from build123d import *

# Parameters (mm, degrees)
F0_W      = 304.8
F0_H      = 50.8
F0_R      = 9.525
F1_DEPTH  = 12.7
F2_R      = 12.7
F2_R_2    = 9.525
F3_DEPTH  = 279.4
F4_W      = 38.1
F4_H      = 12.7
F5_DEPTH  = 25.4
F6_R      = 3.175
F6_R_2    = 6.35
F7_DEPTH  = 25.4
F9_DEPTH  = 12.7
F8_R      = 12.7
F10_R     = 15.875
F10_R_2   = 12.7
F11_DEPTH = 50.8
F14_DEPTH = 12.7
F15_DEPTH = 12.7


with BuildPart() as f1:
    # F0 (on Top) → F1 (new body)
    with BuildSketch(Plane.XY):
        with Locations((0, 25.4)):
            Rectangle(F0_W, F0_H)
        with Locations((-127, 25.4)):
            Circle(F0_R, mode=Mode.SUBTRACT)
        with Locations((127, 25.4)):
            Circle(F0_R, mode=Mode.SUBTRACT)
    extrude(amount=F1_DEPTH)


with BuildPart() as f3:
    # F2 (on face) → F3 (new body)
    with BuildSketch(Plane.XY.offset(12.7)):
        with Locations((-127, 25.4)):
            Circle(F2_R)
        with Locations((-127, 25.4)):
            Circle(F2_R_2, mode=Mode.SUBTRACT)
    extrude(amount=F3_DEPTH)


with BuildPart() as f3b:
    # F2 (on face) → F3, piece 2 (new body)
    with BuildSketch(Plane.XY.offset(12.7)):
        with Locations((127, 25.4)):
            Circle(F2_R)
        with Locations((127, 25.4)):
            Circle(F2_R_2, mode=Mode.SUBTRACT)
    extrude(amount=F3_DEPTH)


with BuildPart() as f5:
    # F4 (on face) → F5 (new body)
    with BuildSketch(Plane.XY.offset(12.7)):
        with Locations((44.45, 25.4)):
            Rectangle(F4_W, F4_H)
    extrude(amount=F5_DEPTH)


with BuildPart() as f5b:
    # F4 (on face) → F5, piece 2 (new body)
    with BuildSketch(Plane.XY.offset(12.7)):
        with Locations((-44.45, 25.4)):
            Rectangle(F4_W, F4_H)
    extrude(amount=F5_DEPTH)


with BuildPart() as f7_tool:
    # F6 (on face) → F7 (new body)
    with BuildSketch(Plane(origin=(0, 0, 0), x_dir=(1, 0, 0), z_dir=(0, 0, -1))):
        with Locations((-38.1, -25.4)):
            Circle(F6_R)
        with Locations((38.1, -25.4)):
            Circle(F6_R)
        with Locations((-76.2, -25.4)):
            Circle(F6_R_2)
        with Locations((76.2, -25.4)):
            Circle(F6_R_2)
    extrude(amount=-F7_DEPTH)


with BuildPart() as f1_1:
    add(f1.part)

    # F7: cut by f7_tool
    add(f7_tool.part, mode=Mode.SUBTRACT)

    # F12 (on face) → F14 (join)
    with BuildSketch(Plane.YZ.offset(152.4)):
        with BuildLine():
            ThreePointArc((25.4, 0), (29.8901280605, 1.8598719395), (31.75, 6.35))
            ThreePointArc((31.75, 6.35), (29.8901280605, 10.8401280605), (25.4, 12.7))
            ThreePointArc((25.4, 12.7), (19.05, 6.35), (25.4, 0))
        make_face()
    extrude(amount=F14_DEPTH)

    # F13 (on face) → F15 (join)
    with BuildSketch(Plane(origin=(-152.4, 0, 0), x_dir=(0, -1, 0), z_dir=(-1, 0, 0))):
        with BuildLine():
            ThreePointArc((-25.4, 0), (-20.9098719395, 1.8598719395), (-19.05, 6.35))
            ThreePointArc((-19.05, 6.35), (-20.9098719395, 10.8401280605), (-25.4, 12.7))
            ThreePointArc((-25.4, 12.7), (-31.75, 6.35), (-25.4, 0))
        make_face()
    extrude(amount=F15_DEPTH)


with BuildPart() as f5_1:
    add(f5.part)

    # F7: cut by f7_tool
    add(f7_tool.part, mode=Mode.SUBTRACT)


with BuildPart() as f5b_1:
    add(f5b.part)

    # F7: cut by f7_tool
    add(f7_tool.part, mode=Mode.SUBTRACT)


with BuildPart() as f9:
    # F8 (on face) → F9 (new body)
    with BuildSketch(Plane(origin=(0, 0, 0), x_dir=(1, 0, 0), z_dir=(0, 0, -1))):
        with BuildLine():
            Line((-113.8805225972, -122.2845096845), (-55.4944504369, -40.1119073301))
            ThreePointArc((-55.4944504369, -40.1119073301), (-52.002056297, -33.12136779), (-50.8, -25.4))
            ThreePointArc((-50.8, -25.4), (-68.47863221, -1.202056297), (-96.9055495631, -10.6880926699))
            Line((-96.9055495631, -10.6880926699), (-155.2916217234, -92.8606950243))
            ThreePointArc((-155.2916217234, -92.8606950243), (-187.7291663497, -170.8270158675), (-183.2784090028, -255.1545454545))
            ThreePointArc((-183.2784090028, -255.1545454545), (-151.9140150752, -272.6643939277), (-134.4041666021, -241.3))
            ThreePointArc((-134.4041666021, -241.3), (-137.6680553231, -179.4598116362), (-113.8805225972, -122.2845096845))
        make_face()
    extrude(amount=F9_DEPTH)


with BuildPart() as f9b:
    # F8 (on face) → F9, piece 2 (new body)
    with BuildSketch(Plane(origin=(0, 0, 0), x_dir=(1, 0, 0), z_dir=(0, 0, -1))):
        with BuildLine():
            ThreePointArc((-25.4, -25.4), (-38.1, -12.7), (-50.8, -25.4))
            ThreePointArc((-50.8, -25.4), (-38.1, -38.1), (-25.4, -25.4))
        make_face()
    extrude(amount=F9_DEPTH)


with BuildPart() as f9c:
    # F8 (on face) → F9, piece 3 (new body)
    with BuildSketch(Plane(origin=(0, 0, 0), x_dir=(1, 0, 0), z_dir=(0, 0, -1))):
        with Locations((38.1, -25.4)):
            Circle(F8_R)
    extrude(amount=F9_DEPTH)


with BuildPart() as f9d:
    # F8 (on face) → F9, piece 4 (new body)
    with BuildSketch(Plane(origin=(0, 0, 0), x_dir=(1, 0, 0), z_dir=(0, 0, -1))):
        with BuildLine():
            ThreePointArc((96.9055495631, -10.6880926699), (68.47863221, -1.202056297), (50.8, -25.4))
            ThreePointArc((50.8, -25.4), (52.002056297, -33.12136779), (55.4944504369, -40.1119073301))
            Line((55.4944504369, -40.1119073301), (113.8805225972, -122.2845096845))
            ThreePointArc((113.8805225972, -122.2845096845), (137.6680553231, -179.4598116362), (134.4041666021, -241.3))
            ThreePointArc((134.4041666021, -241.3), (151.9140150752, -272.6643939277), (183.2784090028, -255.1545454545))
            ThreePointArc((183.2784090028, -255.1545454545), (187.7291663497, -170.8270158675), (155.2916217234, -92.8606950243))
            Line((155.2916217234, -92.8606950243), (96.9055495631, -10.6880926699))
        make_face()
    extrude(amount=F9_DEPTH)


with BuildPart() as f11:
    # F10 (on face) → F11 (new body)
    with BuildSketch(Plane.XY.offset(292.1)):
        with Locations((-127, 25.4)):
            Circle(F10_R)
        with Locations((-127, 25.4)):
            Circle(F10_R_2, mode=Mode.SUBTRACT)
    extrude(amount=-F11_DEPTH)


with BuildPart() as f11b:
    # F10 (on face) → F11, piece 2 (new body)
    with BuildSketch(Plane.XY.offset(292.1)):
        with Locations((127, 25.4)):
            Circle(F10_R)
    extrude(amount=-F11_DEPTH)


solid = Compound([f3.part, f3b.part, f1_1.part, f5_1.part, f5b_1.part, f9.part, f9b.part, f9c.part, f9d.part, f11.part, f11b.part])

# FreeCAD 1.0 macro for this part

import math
import FreeCAD as App
import Part
import Sketcher
Q = App.Units.Quantity

doc = App.newDocument("Part")
body = doc.addObject("PartDesign::Body", "Body")

sketch1 = doc.addObject("Sketcher::SketchObject", "Sketch")
body.addObject(sketch1)
sketch1.AttachmentSupport = (doc.XY_Plane, [""])
sketch1.MapMode = "FlatFace"
sketch1.addGeometry(Part.LineSegment(App.Vector(-152, 51, 0), App.Vector(-152, 0, 0)), False)
sketch1.addGeometry(Part.LineSegment(App.Vector(-152, 0, 0), App.Vector(152, 0, 0)), False)
sketch1.addGeometry(Part.LineSegment(App.Vector(152, 0, 0), App.Vector(152, 51, 0)), False)
sketch1.addGeometry(Part.LineSegment(App.Vector(152, 51, 0), App.Vector(-152, 51, 0)), False)
sketch1.addGeometry(Part.Circle(App.Vector(-127, 25, 0), App.Vector(0, 0, 1), 10), False)
sketch1.addGeometry(Part.Circle(App.Vector(127, 25, 0), App.Vector(0, 0, 1), 10), False)
sketch1.addConstraint(Sketcher.Constraint("Coincident", 0, 2, 1, 1))
sketch1.addConstraint(Sketcher.Constraint("Coincident", 1, 2, 2, 1))
sketch1.addConstraint(Sketcher.Constraint("Coincident", 2, 2, 3, 1))
sketch1.addConstraint(Sketcher.Constraint("Coincident", 3, 2, 0, 1))
sketch1.addConstraint(Sketcher.Constraint("Vertical", 0))
sketch1.addConstraint(Sketcher.Constraint("Horizontal", 1))
sketch1.addConstraint(Sketcher.Constraint("Vertical", 2))
sketch1.addConstraint(Sketcher.Constraint("Horizontal", 3))
sketch1.addConstraint(Sketcher.Constraint("Equal", 4, 5))
sketch1.addConstraint(Sketcher.Constraint("Symmetric", 0, 2, 1, 2, -1, 1))
sketch1.addConstraint(Sketcher.Constraint("Symmetric", 4, 3, 5, 3, -2))
sketch1.addConstraint(Sketcher.Constraint("Diameter", 4, Q("0.75 in")))
sketch1.addConstraint(Sketcher.Constraint("DistanceX", 1, 1, 1, 2, Q("12 in")))
sketch1.addConstraint(Sketcher.Constraint("DistanceY", 0, 2, 0, 1, Q("2 in")))
sketch1.addConstraint(Sketcher.Constraint("DistanceX", 4, 3, -1, 1, Q("5 in")))
sketch1.addConstraint(Sketcher.Constraint("DistanceY", -1, 1, 4, 3, Q("1 in")))
pad1 = doc.addObject("PartDesign::Pad", "Pad")
body.addObject(pad1)
pad1.Profile = sketch1
pad1.Length = Q("0.5 in")
body2 = doc.addObject("PartDesign::Body", "Body001")

sketch2 = doc.addObject("Sketcher::SketchObject", "Sketch001")
body2.addObject(sketch2)
sketch2.AttachmentSupport = (doc.getObject("XY_Plane001"), [""])
sketch2.MapMode = "FlatFace"
sketch2.AttachmentOffset = App.Placement(App.Vector(0, 0, 0.5 * 25.4), App.Rotation())
sketch2.addGeometry(Part.Circle(App.Vector(-127, 25, 0), App.Vector(0, 0, 1), 13), False)
sketch2.addGeometry(Part.Circle(App.Vector(-127, 25, 0), App.Vector(0, 0, 1), 10), False)
sketch2.addConstraint(Sketcher.Constraint("Coincident", 1, 3, 0, 3))
sketch2.addConstraint(Sketcher.Constraint("Diameter", 0, Q("1 in")))
sketch2.addConstraint(Sketcher.Constraint("Diameter", 1, Q("0.75 in")))
sketch2.addConstraint(Sketcher.Constraint("DistanceX", 0, 3, -1, 1, Q("5 in")))
sketch2.addConstraint(Sketcher.Constraint("DistanceY", -1, 1, 0, 3, Q("1 in")))
pad2 = doc.addObject("PartDesign::Pad", "Pad001")
body2.addObject(pad2)
pad2.Profile = sketch2
pad2.Length = Q("11 in")
body3 = doc.addObject("PartDesign::Body", "Body002")

sketch3 = doc.addObject("Sketcher::SketchObject", "Sketch002")
body3.addObject(sketch3)
sketch3.AttachmentSupport = (doc.getObject("XY_Plane002"), [""])
sketch3.MapMode = "FlatFace"
sketch3.AttachmentOffset = App.Placement(App.Vector(0, 0, 0.5 * 25.4), App.Rotation())
sketch3.addGeometry(Part.Circle(App.Vector(127, 25, 0), App.Vector(0, 0, 1), 13), False)
sketch3.addGeometry(Part.Circle(App.Vector(127, 25, 0), App.Vector(0, 0, 1), 10), False)
sketch3.addConstraint(Sketcher.Constraint("Coincident", 1, 3, 0, 3))
sketch3.addConstraint(Sketcher.Constraint("Diameter", 0, Q("1 in")))
sketch3.addConstraint(Sketcher.Constraint("Diameter", 1, Q("0.75 in")))
sketch3.addConstraint(Sketcher.Constraint("DistanceX", -1, 1, 0, 3, Q("5 in")))
sketch3.addConstraint(Sketcher.Constraint("DistanceY", -1, 1, 0, 3, Q("1 in")))
pad3 = doc.addObject("PartDesign::Pad", "Pad002")
body3.addObject(pad3)
pad3.Profile = sketch3
pad3.Length = Q("11 in")
body4 = doc.addObject("PartDesign::Body", "Body003")

sketch4 = doc.addObject("Sketcher::SketchObject", "Sketch003")
body4.addObject(sketch4)
sketch4.AttachmentSupport = (doc.getObject("XY_Plane003"), [""])
sketch4.MapMode = "FlatFace"
sketch4.AttachmentOffset = App.Placement(App.Vector(0, 0, 0.5 * 25.4), App.Rotation())
sketch4.addGeometry(Part.LineSegment(App.Vector(25, 32, 0), App.Vector(25, 19, 0)), False)
sketch4.addGeometry(Part.LineSegment(App.Vector(25, 19, 0), App.Vector(64, 19, 0)), False)
sketch4.addGeometry(Part.LineSegment(App.Vector(64, 19, 0), App.Vector(64, 32, 0)), False)
sketch4.addGeometry(Part.LineSegment(App.Vector(64, 32, 0), App.Vector(25, 32, 0)), False)
sketch4.addConstraint(Sketcher.Constraint("Coincident", 0, 2, 1, 1))
sketch4.addConstraint(Sketcher.Constraint("Coincident", 1, 2, 2, 1))
sketch4.addConstraint(Sketcher.Constraint("Coincident", 2, 2, 3, 1))
sketch4.addConstraint(Sketcher.Constraint("Coincident", 3, 2, 0, 1))
sketch4.addConstraint(Sketcher.Constraint("Vertical", 0))
sketch4.addConstraint(Sketcher.Constraint("Horizontal", 1))
sketch4.addConstraint(Sketcher.Constraint("Vertical", 2))
sketch4.addConstraint(Sketcher.Constraint("Horizontal", 3))
sketch4.addConstraint(Sketcher.Constraint("DistanceX", 1, 1, 1, 2, Q("1.5 in")))
sketch4.addConstraint(Sketcher.Constraint("DistanceY", 0, 2, 0, 1, Q("0.5 in")))
sketch4.addConstraint(Sketcher.Constraint("DistanceX", -1, 1, 0, 2, Q("1 in")))
sketch4.addConstraint(Sketcher.Constraint("DistanceY", -1, 1, 0, 2, Q("0.75 in")))
pad4 = doc.addObject("PartDesign::Pad", "Pad003")
body4.addObject(pad4)
pad4.Profile = sketch4
pad4.Length = Q("1 in")
body5 = doc.addObject("PartDesign::Body", "Body004")

sketch5 = doc.addObject("Sketcher::SketchObject", "Sketch004")
body5.addObject(sketch5)
sketch5.AttachmentSupport = (doc.getObject("XY_Plane004"), [""])
sketch5.MapMode = "FlatFace"
sketch5.AttachmentOffset = App.Placement(App.Vector(0, 0, 0.5 * 25.4), App.Rotation())
sketch5.addGeometry(Part.LineSegment(App.Vector(-64, 32, 0), App.Vector(-64, 19, 0)), False)
sketch5.addGeometry(Part.LineSegment(App.Vector(-64, 19, 0), App.Vector(-25, 19, 0)), False)
sketch5.addGeometry(Part.LineSegment(App.Vector(-25, 19, 0), App.Vector(-25, 32, 0)), False)
sketch5.addGeometry(Part.LineSegment(App.Vector(-25, 32, 0), App.Vector(-64, 32, 0)), False)
sketch5.addConstraint(Sketcher.Constraint("Coincident", 0, 2, 1, 1))
sketch5.addConstraint(Sketcher.Constraint("Coincident", 1, 2, 2, 1))
sketch5.addConstraint(Sketcher.Constraint("Coincident", 2, 2, 3, 1))
sketch5.addConstraint(Sketcher.Constraint("Coincident", 3, 2, 0, 1))
sketch5.addConstraint(Sketcher.Constraint("Vertical", 0))
sketch5.addConstraint(Sketcher.Constraint("Horizontal", 1))
sketch5.addConstraint(Sketcher.Constraint("Vertical", 2))
sketch5.addConstraint(Sketcher.Constraint("Horizontal", 3))
sketch5.addConstraint(Sketcher.Constraint("DistanceX", 1, 1, 1, 2, Q("1.5 in")))
sketch5.addConstraint(Sketcher.Constraint("DistanceY", 0, 2, 0, 1, Q("0.5 in")))
sketch5.addConstraint(Sketcher.Constraint("DistanceX", 1, 2, -1, 1, Q("1 in")))
sketch5.addConstraint(Sketcher.Constraint("DistanceY", -1, 1, 0, 2, Q("0.75 in")))
pad5 = doc.addObject("PartDesign::Pad", "Pad004")
body5.addObject(pad5)
pad5.Profile = sketch5
pad5.Length = Q("1 in")
body6 = doc.addObject("PartDesign::Body", "Body005")
body6.AllowCompound = True

sketch6 = doc.addObject("Sketcher::SketchObject", "Sketch005")
body6.addObject(sketch6)
sketch6.AttachmentSupport = (doc.getObject("XY_Plane005"), [""])
sketch6.MapMode = "FlatFace"
sketch6.addGeometry(Part.Circle(App.Vector(-38.1, 25.4, 0), App.Vector(0, 0, 1), 3.2), False)
sketch6.addGeometry(Part.Circle(App.Vector(38.1, 25.4, 0), App.Vector(0, 0, 1), 3.2), False)
sketch6.addGeometry(Part.Circle(App.Vector(-76.2, 25.4, 0), App.Vector(0, 0, 1), 6.3), False)
sketch6.addGeometry(Part.Circle(App.Vector(76.2, 25.4, 0), App.Vector(0, 0, 1), 6.3), False)
sketch6.addConstraint(Sketcher.Constraint("Equal", 0, 1))
sketch6.addConstraint(Sketcher.Constraint("Equal", 2, 3))
sketch6.addConstraint(Sketcher.Constraint("Symmetric", 0, 3, 1, 3, -2))
sketch6.addConstraint(Sketcher.Constraint("Symmetric", 2, 3, 3, 3, -2))
sketch6.addConstraint(Sketcher.Constraint("Horizontal", 1, 3, 2, 3))
sketch6.addConstraint(Sketcher.Constraint("Diameter", 2, Q("0.5 in")))
sketch6.addConstraint(Sketcher.Constraint("Diameter", 0, Q("0.25 in")))
sketch6.addConstraint(Sketcher.Constraint("DistanceY", -1, 1, 0, 3, Q("1 in")))
sketch6.addConstraint(Sketcher.Constraint("DistanceX", 2, 3, -1, 1, Q("3 in")))
sketch6.addConstraint(Sketcher.Constraint("DistanceX", 0, 3, 1, 3, Q("3 in")))
pad6 = doc.addObject("PartDesign::Pad", "Pad005")
body6.addObject(pad6)
pad6.Profile = sketch6
pad6.Length = Q("1 in")
doc.recompute()

body7 = doc.addObject("PartDesign::Body", "Body006")
body7.BaseFeature = body6
boolean = doc.addObject("PartDesign::Boolean", "Boolean")
body.addObject(boolean)
boolean.Type = "Cut"
boolean.addObjects([body7])
doc.recompute()

sketch7 = doc.addObject("Sketcher::SketchObject", "Sketch006")
body.addObject(sketch7)
sketch7.AttachmentSupport = (doc.YZ_Plane, [""])
sketch7.MapMode = "FlatFace"
sketch7.AttachmentOffset = App.Placement(App.Vector(0, 0, 6 * 25.4), App.Rotation())
sketch7.addGeometry(Part.ArcOfCircle(Part.Circle(App.Vector(25, 6, 0), App.Vector(0, 0, 1), 6), math.radians(-90), math.radians(0)), False)
sketch7.addGeometry(Part.ArcOfCircle(Part.Circle(App.Vector(25, 6, 0), App.Vector(0, 0, 1), 6), math.radians(0), math.radians(90)), False)
sketch7.addGeometry(Part.ArcOfCircle(Part.Circle(App.Vector(25, 6, 0), App.Vector(0, 0, 1), 6), math.radians(90), math.radians(270)), False)
sketch7.addConstraint(Sketcher.Constraint("Tangent", 0, 2, 1, 1))
sketch7.addConstraint(Sketcher.Constraint("Tangent", 1, 2, 2, 1))
sketch7.addConstraint(Sketcher.Constraint("Tangent", 2, 2, 0, 1))
sketch7.addConstraint(Sketcher.Constraint("PointOnObject", 2, 2, -1))
sketch7.addConstraint(Sketcher.Constraint("Horizontal", 2, 3, 0, 2))
sketch7.addConstraint(Sketcher.Constraint("Vertical", 2, 3, 1, 2))
sketch7.addConstraint(Sketcher.Constraint("Vertical", 1, 2, 2, 2))
sketch7.addConstraint(Sketcher.Constraint("Radius", 0, Q("0.25 in")))
sketch7.addConstraint(Sketcher.Constraint("DistanceX", -1, 1, 0, 3, Q("1 in")))
pad7 = doc.addObject("PartDesign::Pad", "Pad006")
body.addObject(pad7)
pad7.Profile = sketch7
pad7.Length = Q("0.5 in")

sketch8 = doc.addObject("Sketcher::SketchObject", "Sketch007")
body.addObject(sketch8)
sketch8.AttachmentSupport = (doc.YZ_Plane, [""])
sketch8.MapMode = "FlatFace"
sketch8.AttachmentOffset = App.Placement(App.Vector(0, 0, -6 * 25.4), App.Rotation())
sketch8.addGeometry(Part.ArcOfCircle(Part.Circle(App.Vector(25, 6, 0), App.Vector(0, 0, 1), 6), math.radians(180), math.radians(270)), False)
sketch8.addGeometry(Part.ArcOfCircle(Part.Circle(App.Vector(25, 6, 0), App.Vector(0, 0, 1), 6), math.radians(90), math.radians(180)), False)
sketch8.addGeometry(Part.ArcOfCircle(Part.Circle(App.Vector(25, 6, 0), App.Vector(0, 0, 1), 6), math.radians(-90), math.radians(90)), False)
sketch8.addConstraint(Sketcher.Constraint("Tangent", 0, 1, 1, 2))
sketch8.addConstraint(Sketcher.Constraint("Tangent", 1, 1, 2, 2))
sketch8.addConstraint(Sketcher.Constraint("Tangent", 2, 1, 0, 2))
sketch8.addConstraint(Sketcher.Constraint("PointOnObject", 2, 1, -1))
sketch8.addConstraint(Sketcher.Constraint("Horizontal", 2, 3, 0, 1))
sketch8.addConstraint(Sketcher.Constraint("Vertical", 2, 3, 1, 1))
sketch8.addConstraint(Sketcher.Constraint("Vertical", 1, 1, 2, 1))
sketch8.addConstraint(Sketcher.Constraint("Radius", 0, Q("0.25 in")))
sketch8.addConstraint(Sketcher.Constraint("DistanceX", -1, 1, 0, 3, Q("1 in")))
pad8 = doc.addObject("PartDesign::Pad", "Pad007")
body.addObject(pad8)
pad8.Profile = sketch8
pad8.Length = Q("0.5 in")
pad8.Reversed = True
doc.recompute()

body8 = doc.addObject("PartDesign::Body", "Body007")
body8.BaseFeature = body6
boolean2 = doc.addObject("PartDesign::Boolean", "Boolean001")
body4.addObject(boolean2)
boolean2.Type = "Cut"
boolean2.addObjects([body8])
doc.recompute()

boolean3 = doc.addObject("PartDesign::Boolean", "Boolean002")
body5.addObject(boolean3)
boolean3.Type = "Cut"
boolean3.addObjects([body6])
body9 = doc.addObject("PartDesign::Body", "Body008")

sketch9 = doc.addObject("Sketcher::SketchObject", "Sketch008")
body9.addObject(sketch9)
sketch9.AttachmentSupport = (doc.getObject("XY_Plane008"), [""])
sketch9.MapMode = "FlatFace"
sketch9.addGeometry(Part.LineSegment(App.Vector(-114, 122, 0), App.Vector(-55, 40, 0)), False)
sketch9.addGeometry(Part.ArcOfCircle(Part.Circle(App.Vector(-76, 25, 0), App.Vector(0, 0, 1), 25), math.radians(0), math.radians(35)), False)
sketch9.addGeometry(Part.ArcOfCircle(Part.Circle(App.Vector(-76, 25, 0), App.Vector(0, 0, 1), 25), math.radians(-145), math.radians(0)), False)
sketch9.addGeometry(Part.LineSegment(App.Vector(-97, 11, 0), App.Vector(-155, 93, 0)), False)
sketch9.addGeometry(Part.ArcOfCircle(Part.Circle(App.Vector(0, 203, 0), App.Vector(0, 0, 1), 190), math.radians(164), math.radians(215)), False)
sketch9.addGeometry(Part.ArcOfCircle(Part.Circle(App.Vector(-159, 248, 0), App.Vector(0, 0, 1), 25), math.radians(-16), math.radians(164)), False)
sketch9.addGeometry(Part.ArcOfCircle(Part.Circle(App.Vector(0, 203, 0), App.Vector(0, 0, 1), 140), math.radians(164), math.radians(215)), False)
sketch9.addConstraint(Sketcher.Constraint("Tangent", 0, 2, 1, 2))
sketch9.addConstraint(Sketcher.Constraint("Tangent", 1, 1, 2, 2))
sketch9.addConstraint(Sketcher.Constraint("Tangent", 2, 1, 3, 1))
sketch9.addConstraint(Sketcher.Constraint("Tangent", 3, 2, 4, 2))
sketch9.addConstraint(Sketcher.Constraint("Tangent", 4, 1, 5, 2))
sketch9.addConstraint(Sketcher.Constraint("Tangent", 5, 1, 6, 1))
sketch9.addConstraint(Sketcher.Constraint("Tangent", 6, 2, 0, 1))
sketch9.addConstraint(Sketcher.Constraint("Coincident", 6, 3, 4, 3))
sketch9.addConstraint(Sketcher.Constraint("Equal", 1, 2))
sketch9.addConstraint(Sketcher.Constraint("Equal", 2, 5))
sketch9.addConstraint(Sketcher.Constraint("PointOnObject", 4, 3, -2))
sketch9.addConstraint(Sketcher.Constraint("Horizontal", 2, 3, 1, 1))
sketch9.addConstraint(Sketcher.Constraint("Radius", 1, Q("1 in")))
sketch9.addConstraint(Sketcher.Constraint("Radius", 4, Q("7.5 in")))
sketch9.addConstraint(Sketcher.Constraint("DistanceX", 1, 3, -1, 1, Q("3 in")))
sketch9.addConstraint(Sketcher.Constraint("DistanceY", -1, 1, 1, 3, Q("1 in")))
sketch9.addConstraint(Sketcher.Constraint("DistanceY", -1, 1, 4, 3, Q("8 in")))
sketch9.addConstraint(Sketcher.Constraint("DistanceY", -1, 1, 5, 1, Q("9.5 in")))
pad9 = doc.addObject("PartDesign::Pad", "Pad008")
body9.addObject(pad9)
pad9.Profile = sketch9
pad9.Length = Q("0.5 in")
pad9.Reversed = True
body10 = doc.addObject("PartDesign::Body", "Body009")

sketch10 = doc.addObject("Sketcher::SketchObject", "Sketch009")
body10.addObject(sketch10)
sketch10.AttachmentSupport = (doc.getObject("XY_Plane009"), [""])
sketch10.MapMode = "FlatFace"
sketch10.addGeometry(Part.Circle(App.Vector(-38, 25, 0), App.Vector(0, 0, 1), 13), False)
sketch10.addConstraint(Sketcher.Constraint("Diameter", 0, Q("1 in")))
sketch10.addConstraint(Sketcher.Constraint("DistanceY", -1, 1, 0, 3, Q("1 in")))
sketch10.addConstraint(Sketcher.Constraint("DistanceX", 0, 3, -1, 1, Q("1.5 in")))
pad10 = doc.addObject("PartDesign::Pad", "Pad009")
body10.addObject(pad10)
pad10.Profile = sketch10
pad10.Length = Q("0.5 in")
pad10.Reversed = True
body11 = doc.addObject("PartDesign::Body", "Body010")

sketch11 = doc.addObject("Sketcher::SketchObject", "Sketch010")
body11.addObject(sketch11)
sketch11.AttachmentSupport = (doc.getObject("XY_Plane010"), [""])
sketch11.MapMode = "FlatFace"
sketch11.addGeometry(Part.Circle(App.Vector(38, 25, 0), App.Vector(0, 0, 1), 13), False)
sketch11.addConstraint(Sketcher.Constraint("Diameter", 0, Q("1 in")))
sketch11.addConstraint(Sketcher.Constraint("DistanceY", -1, 1, 0, 3, Q("1 in")))
sketch11.addConstraint(Sketcher.Constraint("DistanceX", -1, 1, 0, 3, Q("1.5 in")))
pad11 = doc.addObject("PartDesign::Pad", "Pad010")
body11.addObject(pad11)
pad11.Profile = sketch11
pad11.Length = Q("0.5 in")
pad11.Reversed = True
body12 = doc.addObject("PartDesign::Body", "Body011")

sketch12 = doc.addObject("Sketcher::SketchObject", "Sketch011")
body12.addObject(sketch12)
sketch12.AttachmentSupport = (doc.getObject("XY_Plane011"), [""])
sketch12.MapMode = "FlatFace"
sketch12.addGeometry(Part.ArcOfCircle(Part.Circle(App.Vector(76, 25, 0), App.Vector(0, 0, 1), 25), math.radians(180), math.radians(325)), False)
sketch12.addGeometry(Part.ArcOfCircle(Part.Circle(App.Vector(76, 25, 0), App.Vector(0, 0, 1), 25), math.radians(145), math.radians(180)), False)
sketch12.addGeometry(Part.LineSegment(App.Vector(55, 40, 0), App.Vector(114, 122, 0)), False)
sketch12.addGeometry(Part.ArcOfCircle(Part.Circle(App.Vector(0, 203, 0), App.Vector(0, 0, 1), 140), math.radians(-35), math.radians(16)), False)
sketch12.addGeometry(Part.ArcOfCircle(Part.Circle(App.Vector(159, 248, 0), App.Vector(0, 0, 1), 25), math.radians(16), math.radians(196)), False)
sketch12.addGeometry(Part.ArcOfCircle(Part.Circle(App.Vector(0, 203, 0), App.Vector(0, 0, 1), 190), math.radians(-35), math.radians(16)), False)
sketch12.addGeometry(Part.LineSegment(App.Vector(155, 93, 0), App.Vector(97, 11, 0)), False)
sketch12.addConstraint(Sketcher.Constraint("Tangent", 0, 1, 1, 2))
sketch12.addConstraint(Sketcher.Constraint("Tangent", 1, 1, 2, 1))
sketch12.addConstraint(Sketcher.Constraint("Tangent", 2, 2, 3, 1))
sketch12.addConstraint(Sketcher.Constraint("Tangent", 3, 2, 4, 2))
sketch12.addConstraint(Sketcher.Constraint("Tangent", 4, 1, 5, 2))
sketch12.addConstraint(Sketcher.Constraint("Tangent", 5, 1, 6, 1))
sketch12.addConstraint(Sketcher.Constraint("Tangent", 6, 2, 0, 2))
sketch12.addConstraint(Sketcher.Constraint("Coincident", 5, 3, 3, 3))
sketch12.addConstraint(Sketcher.Constraint("Equal", 0, 1))
sketch12.addConstraint(Sketcher.Constraint("Equal", 1, 4))
sketch12.addConstraint(Sketcher.Constraint("PointOnObject", 3, 3, -2))
sketch12.addConstraint(Sketcher.Constraint("Horizontal", 1, 3, 0, 1))
sketch12.addConstraint(Sketcher.Constraint("Radius", 0, Q("1 in")))
sketch12.addConstraint(Sketcher.Constraint("Radius", 3, Q("5.5 in")))
sketch12.addConstraint(Sketcher.Constraint("DistanceX", -1, 1, 0, 3, Q("3 in")))
sketch12.addConstraint(Sketcher.Constraint("DistanceY", -1, 1, 0, 3, Q("1 in")))
sketch12.addConstraint(Sketcher.Constraint("DistanceY", -1, 1, 3, 3, Q("8 in")))
sketch12.addConstraint(Sketcher.Constraint("DistanceY", -1, 1, 3, 2, Q("9.5 in")))
pad12 = doc.addObject("PartDesign::Pad", "Pad011")
body12.addObject(pad12)
pad12.Profile = sketch12
pad12.Length = Q("0.5 in")
pad12.Reversed = True
body13 = doc.addObject("PartDesign::Body", "Body012")

sketch13 = doc.addObject("Sketcher::SketchObject", "Sketch012")
body13.addObject(sketch13)
sketch13.AttachmentSupport = (doc.getObject("XY_Plane012"), [""])
sketch13.MapMode = "FlatFace"
sketch13.AttachmentOffset = App.Placement(App.Vector(0, 0, 11.5 * 25.4), App.Rotation())
sketch13.addGeometry(Part.Circle(App.Vector(-127, 25, 0), App.Vector(0, 0, 1), 16), False)
sketch13.addGeometry(Part.Circle(App.Vector(-127, 25, 0), App.Vector(0, 0, 1), 13), False)
sketch13.addConstraint(Sketcher.Constraint("Coincident", 1, 3, 0, 3))
sketch13.addConstraint(Sketcher.Constraint("Diameter", 1, Q("1 in")))
sketch13.addConstraint(Sketcher.Constraint("Diameter", 0, Q("1.25 in")))
sketch13.addConstraint(Sketcher.Constraint("DistanceX", 0, 3, -1, 1, Q("5 in")))
sketch13.addConstraint(Sketcher.Constraint("DistanceY", -1, 1, 0, 3, Q("1 in")))
pad13 = doc.addObject("PartDesign::Pad", "Pad012")
body13.addObject(pad13)
pad13.Profile = sketch13
pad13.Length = Q("2 in")
pad13.Reversed = True
body14 = doc.addObject("PartDesign::Body", "Body013")

sketch14 = doc.addObject("Sketcher::SketchObject", "Sketch013")
body14.addObject(sketch14)
sketch14.AttachmentSupport = (doc.getObject("XY_Plane013"), [""])
sketch14.MapMode = "FlatFace"
sketch14.AttachmentOffset = App.Placement(App.Vector(0, 0, 11.5 * 25.4), App.Rotation())
sketch14.addGeometry(Part.Circle(App.Vector(127, 25, 0), App.Vector(0, 0, 1), 16), False)
sketch14.addConstraint(Sketcher.Constraint("Diameter", 0, Q("1.25 in")))
sketch14.addConstraint(Sketcher.Constraint("DistanceX", -1, 1, 0, 3, Q("5 in")))
sketch14.addConstraint(Sketcher.Constraint("DistanceY", -1, 1, 0, 3, Q("1 in")))
pad14 = doc.addObject("PartDesign::Pad", "Pad013")
body14.addObject(pad14)
pad14.Profile = sketch14
pad14.Length = Q("2 in")
pad14.Reversed = True

doc.recompute()
